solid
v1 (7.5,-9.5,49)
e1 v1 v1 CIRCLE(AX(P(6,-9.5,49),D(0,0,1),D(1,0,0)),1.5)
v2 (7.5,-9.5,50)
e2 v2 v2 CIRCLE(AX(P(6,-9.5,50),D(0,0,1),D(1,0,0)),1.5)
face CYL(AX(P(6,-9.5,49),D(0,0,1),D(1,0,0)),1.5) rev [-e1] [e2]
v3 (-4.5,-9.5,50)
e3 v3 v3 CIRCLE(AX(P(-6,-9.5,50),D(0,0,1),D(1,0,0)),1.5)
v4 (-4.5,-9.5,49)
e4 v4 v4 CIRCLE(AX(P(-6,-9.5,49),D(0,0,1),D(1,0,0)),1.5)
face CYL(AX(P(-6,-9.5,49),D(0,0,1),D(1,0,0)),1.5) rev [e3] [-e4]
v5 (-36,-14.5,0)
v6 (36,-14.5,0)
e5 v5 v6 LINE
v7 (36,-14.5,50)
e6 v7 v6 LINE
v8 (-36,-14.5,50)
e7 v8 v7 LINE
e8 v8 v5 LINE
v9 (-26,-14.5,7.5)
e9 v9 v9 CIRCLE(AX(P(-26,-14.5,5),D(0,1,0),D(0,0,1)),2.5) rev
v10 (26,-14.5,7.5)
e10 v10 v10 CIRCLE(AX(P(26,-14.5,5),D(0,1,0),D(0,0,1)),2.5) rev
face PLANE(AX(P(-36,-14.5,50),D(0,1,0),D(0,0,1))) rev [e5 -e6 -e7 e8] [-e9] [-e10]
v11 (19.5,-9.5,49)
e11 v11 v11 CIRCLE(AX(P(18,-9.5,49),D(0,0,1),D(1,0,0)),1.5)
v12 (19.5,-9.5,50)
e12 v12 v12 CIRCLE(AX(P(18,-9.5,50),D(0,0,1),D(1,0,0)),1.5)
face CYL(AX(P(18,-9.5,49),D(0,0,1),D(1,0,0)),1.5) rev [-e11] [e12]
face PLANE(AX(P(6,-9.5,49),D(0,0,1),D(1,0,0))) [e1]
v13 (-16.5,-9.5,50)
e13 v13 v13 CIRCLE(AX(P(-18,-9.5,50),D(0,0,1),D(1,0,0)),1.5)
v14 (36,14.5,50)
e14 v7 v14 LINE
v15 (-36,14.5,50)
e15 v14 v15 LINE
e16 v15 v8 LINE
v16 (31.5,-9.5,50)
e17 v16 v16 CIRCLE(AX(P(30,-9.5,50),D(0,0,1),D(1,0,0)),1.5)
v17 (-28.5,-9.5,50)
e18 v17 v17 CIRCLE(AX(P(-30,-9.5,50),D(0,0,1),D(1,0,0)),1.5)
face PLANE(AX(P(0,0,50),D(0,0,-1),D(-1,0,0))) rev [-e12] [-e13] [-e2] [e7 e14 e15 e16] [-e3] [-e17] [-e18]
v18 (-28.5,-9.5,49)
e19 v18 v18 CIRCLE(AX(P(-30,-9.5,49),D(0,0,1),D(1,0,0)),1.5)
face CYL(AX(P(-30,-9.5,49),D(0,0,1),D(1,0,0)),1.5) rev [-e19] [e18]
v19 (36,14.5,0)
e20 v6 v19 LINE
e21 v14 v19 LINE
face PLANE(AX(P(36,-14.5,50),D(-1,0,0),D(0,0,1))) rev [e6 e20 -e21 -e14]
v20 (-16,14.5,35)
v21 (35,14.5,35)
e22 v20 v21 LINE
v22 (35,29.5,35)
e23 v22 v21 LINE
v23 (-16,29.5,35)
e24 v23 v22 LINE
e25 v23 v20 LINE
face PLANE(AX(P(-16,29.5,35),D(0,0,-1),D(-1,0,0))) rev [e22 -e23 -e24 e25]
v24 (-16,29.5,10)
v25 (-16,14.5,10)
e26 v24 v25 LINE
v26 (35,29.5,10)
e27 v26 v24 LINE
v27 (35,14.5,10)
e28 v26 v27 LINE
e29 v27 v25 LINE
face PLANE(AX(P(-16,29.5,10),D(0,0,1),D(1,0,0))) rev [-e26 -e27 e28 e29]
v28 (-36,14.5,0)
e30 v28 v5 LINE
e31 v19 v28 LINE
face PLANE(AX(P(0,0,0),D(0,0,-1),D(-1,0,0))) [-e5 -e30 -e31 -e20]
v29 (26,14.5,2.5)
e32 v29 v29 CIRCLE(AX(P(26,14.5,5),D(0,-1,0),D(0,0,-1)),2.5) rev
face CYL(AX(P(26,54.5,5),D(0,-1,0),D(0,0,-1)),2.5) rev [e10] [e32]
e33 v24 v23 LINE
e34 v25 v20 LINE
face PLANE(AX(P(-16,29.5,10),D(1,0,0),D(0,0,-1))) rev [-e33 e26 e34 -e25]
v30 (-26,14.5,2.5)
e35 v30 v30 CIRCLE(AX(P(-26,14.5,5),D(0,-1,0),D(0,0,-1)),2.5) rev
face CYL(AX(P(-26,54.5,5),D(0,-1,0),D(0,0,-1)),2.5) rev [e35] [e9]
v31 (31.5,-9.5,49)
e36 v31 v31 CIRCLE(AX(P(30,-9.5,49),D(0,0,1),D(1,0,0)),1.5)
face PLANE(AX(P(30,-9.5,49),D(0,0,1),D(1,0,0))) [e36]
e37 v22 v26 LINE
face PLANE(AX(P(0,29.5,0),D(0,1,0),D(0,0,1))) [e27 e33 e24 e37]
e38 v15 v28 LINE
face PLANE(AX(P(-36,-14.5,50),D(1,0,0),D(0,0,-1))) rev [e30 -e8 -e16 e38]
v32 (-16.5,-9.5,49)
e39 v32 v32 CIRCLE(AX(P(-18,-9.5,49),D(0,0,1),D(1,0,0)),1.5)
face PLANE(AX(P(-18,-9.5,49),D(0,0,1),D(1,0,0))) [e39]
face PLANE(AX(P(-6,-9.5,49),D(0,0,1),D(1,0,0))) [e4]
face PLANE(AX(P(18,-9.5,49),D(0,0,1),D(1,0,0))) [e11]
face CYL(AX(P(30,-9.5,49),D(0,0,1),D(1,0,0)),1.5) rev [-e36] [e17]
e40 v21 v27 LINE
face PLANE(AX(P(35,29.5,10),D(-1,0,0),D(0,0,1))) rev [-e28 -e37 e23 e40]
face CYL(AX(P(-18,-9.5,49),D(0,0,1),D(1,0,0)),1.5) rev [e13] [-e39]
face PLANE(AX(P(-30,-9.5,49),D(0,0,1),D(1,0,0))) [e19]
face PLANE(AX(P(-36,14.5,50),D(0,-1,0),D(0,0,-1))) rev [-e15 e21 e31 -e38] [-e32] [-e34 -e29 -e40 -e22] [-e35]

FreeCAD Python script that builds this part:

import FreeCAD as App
import Part
import Sketcher

V = App.Vector
Q = App.Units.Quantity


def add_polygon(sketch, points):
    """Adds a closed chain of lines whose ends are joined by coincident constraints."""
    first, n = sketch.GeometryCount, len(points)
    for a, b in zip(points, points[1:] + points[:1]):
        sketch.addGeometry(Part.LineSegment(App.Vector(*a, 0), App.Vector(*b, 0)), False)
    for i in range(n):
        sketch.addConstraint(Sketcher.Constraint("Coincident", first + i, 2, first + (i + 1) % n, 1))

doc = App.newDocument("Part")
params = doc.addObject("Spreadsheet::Sheet", "Params")
for row, (alias, value) in enumerate([
    ("sketch1_width", "72 mm"),
    ("sketch1_height", "29 mm"),
    ("pad1_length", "50 mm"),
    ("sketch2_diameter", "5 mm"),
    ("sketch2_width", "51 mm"),
    ("sketch2_height", "25 mm"),
    ("pad2_length", "15 mm"),
    ("sketch3_diameter", "3 mm"),
    ("pocket1_length", "1 mm"),
    ("sketch4_diameter", "5 mm"),
], start=1):
    params.set(f"A{row}", alias)
    params.set(f"B{row}", "=" + value)
    params.setAlias(f"B{row}", alias)

body = doc.addObject("PartDesign::Body", "Body")

# Sketch on XY plane
sketch1 = doc.addObject("Sketcher::SketchObject", "Sketch")
body.addObject(sketch1)
sketch1.AttachmentSupport = (doc.XY_Plane, [""])
sketch1.MapMode = "FlatFace"
add_polygon(sketch1, [(-36, 14), (-36, -14), (36, -14), (36, 14)])  # lines 0-3
sketch1.addConstraint([
    Sketcher.Constraint("Vertical", 0),
    Sketcher.Constraint("Horizontal", 1),
    Sketcher.Constraint("Vertical", 2),
    Sketcher.Constraint("Horizontal", 3),
    Sketcher.Constraint("Symmetric", 0, 2, 2, 2, -1, 1),
    Sketcher.Constraint("DistanceX", 1, 1, 1, 2, Q("72 mm")),
    Sketcher.Constraint("DistanceY", 0, 2, 0, 1, Q("29 mm")),
])
sketch1.setExpression("Constraints[9]", "Params.sketch1_width")
sketch1.setExpression("Constraints[10]", "Params.sketch1_height")
pad1 = doc.addObject("PartDesign::Pad", "Pad")
body.addObject(pad1)
pad1.Profile = sketch1
pad1.setExpression("Length", "Params.pad1_length")

# Sketch on XZ plane
sketch2 = doc.addObject("Sketcher::SketchObject", "Sketch001")
body.addObject(sketch2)
sketch2.AttachmentSupport = (doc.XZ_Plane, [""])
sketch2.MapMode = "FlatFace"
sketch2.AttachmentOffset = App.Placement(V(0, 0, -14.5), App.Rotation())
sketch2.addGeometry(Part.Circle(V(-26, 5, 0), V(0, 0, 1), 2.5), False)  # 0
sketch2.addGeometry(Part.Circle(V(26, 5, 0), V(0, 0, 1), 2.5), False)  # 1
add_polygon(sketch2, [(-16, 10), (-16, 35), (35, 35), (35, 10)])  # lines 2-5
sketch2.addConstraint([
    Sketcher.Constraint("Vertical", 2),
    Sketcher.Constraint("Horizontal", 3),
    Sketcher.Constraint("Vertical", 4),
    Sketcher.Constraint("Horizontal", 5),
    Sketcher.Constraint("Equal", 0, 1),
    Sketcher.Constraint("Symmetric", 0, 3, 1, 3, -2),
    Sketcher.Constraint("Diameter", 0, Q("5 mm")),
    Sketcher.Constraint("DistanceX", 3, 1, 3, 2, Q("51 mm")),
    Sketcher.Constraint("DistanceY", 2, 1, 2, 2, Q("25 mm")),
    Sketcher.Constraint("DistanceX", 0, 3, -1, 1, Q("26 mm")),
    Sketcher.Constraint("DistanceY", -1, 1, 0, 3, Q("5 mm")),
    Sketcher.Constraint("DistanceX", 2, 2, -1, 1, Q("16 mm")),
    Sketcher.Constraint("DistanceY", -1, 1, 2, 2, Q("35 mm")),
])
sketch2.setExpression("Constraints[10]", "Params.sketch2_diameter")
sketch2.setExpression("Constraints[11]", "Params.sketch2_width")
sketch2.setExpression("Constraints[12]", "Params.sketch2_height")
pad2 = doc.addObject("PartDesign::Pad", "Pad001")
body.addObject(pad2)
pad2.Profile = sketch2
pad2.setExpression("Length", "Params.pad2_length")
pad2.Reversed = True

# Sketch on XY plane
sketch3 = doc.addObject("Sketcher::SketchObject", "Sketch002")
body.addObject(sketch3)
sketch3.AttachmentSupport = (doc.XY_Plane, [""])
sketch3.MapMode = "FlatFace"
sketch3.AttachmentOffset = App.Placement(V(0, 0, 50), App.Rotation())
sketch3.addGeometry([
    Part.Circle(V(-30, -9.5, 0), V(0, 0, 1), 1.5),  # 0
    Part.Circle(V(-18, -9.5, 0), V(0, 0, 1), 1.5),  # 1
    Part.Circle(V(-6, -9.5, 0), V(0, 0, 1), 1.5),  # 2
    Part.Circle(V(6, -9.5, 0), V(0, 0, 1), 1.5),  # 3
    Part.Circle(V(18, -9.5, 0), V(0, 0, 1), 1.5),  # 4
    Part.Circle(V(30, -9.5, 0), V(0, 0, 1), 1.5),  # 5
], False)
sketch3.addConstraint([
    Sketcher.Constraint("Equal", 0, 1),
    Sketcher.Constraint("Equal", 1, 2),
    Sketcher.Constraint("Equal", 2, 3),
    Sketcher.Constraint("Equal", 3, 4),
    Sketcher.Constraint("Equal", 4, 5),
    Sketcher.Constraint("Symmetric", 2, 3, 3, 3, -2),
    Sketcher.Constraint("Symmetric", 1, 3, 4, 3, -2),
    Sketcher.Constraint("Symmetric", 0, 3, 5, 3, -2),
    Sketcher.Constraint("Horizontal", 0, 3, 1, 3),
    Sketcher.Constraint("Horizontal", 1, 3, 2, 3),
    Sketcher.Constraint("Diameter", 0, Q("3 mm")),
    Sketcher.Constraint("DistanceX", 0, 3, -1, 1, Q("30 mm")),
    Sketcher.Constraint("DistanceX", 1, 3, -1, 1, Q("18 mm")),
    Sketcher.Constraint("DistanceX", 2, 3, -1, 1, Q("6 mm")),
    Sketcher.Constraint("DistanceY", 0, 3, -1, 1, Q("9.5 mm")),
])
sketch3.setExpression("Constraints[10]", "Params.sketch3_diameter")
pocket1 = doc.addObject("PartDesign::Pocket", "Pocket")
body.addObject(pocket1)
pocket1.Profile = sketch3
pocket1.setExpression("Length", "Params.pocket1_length")

# Sketch on XZ plane
sketch4 = doc.addObject("Sketcher::SketchObject", "Sketch003")
body.addObject(sketch4)
sketch4.AttachmentSupport = (doc.XZ_Plane, [""])
sketch4.MapMode = "FlatFace"
sketch4.AttachmentOffset = App.Placement(V(0, 0, -14.5), App.Rotation())
sketch4.addGeometry([
    Part.Circle(V(26, 5, 0), V(0, 0, 1), 2.5),
    Part.Circle(V(-26, 5, 0), V(0, 0, 1), 2.5),
], False)
sketch4.addConstraint([
    Sketcher.Constraint("Equal", 0, 1),
    Sketcher.Constraint("Symmetric", 0, 3, 1, 3, -2),
    Sketcher.Constraint("Diameter", 0, Q("5 mm")),
    Sketcher.Constraint("DistanceX", -1, 1, 0, 3, Q("26 mm")),
    Sketcher.Constraint("DistanceY", -1, 1, 0, 3, Q("5 mm")),
])
sketch4.setExpression("Constraints[2]", "Params.sketch4_diameter")
pocket2 = doc.addObject("PartDesign::Pocket", "Pocket001")
body.addObject(pocket2)
pocket2.Profile = sketch4
pocket2.Type = "ThroughAll"
pocket2.Midplane = True

doc.recompute()
